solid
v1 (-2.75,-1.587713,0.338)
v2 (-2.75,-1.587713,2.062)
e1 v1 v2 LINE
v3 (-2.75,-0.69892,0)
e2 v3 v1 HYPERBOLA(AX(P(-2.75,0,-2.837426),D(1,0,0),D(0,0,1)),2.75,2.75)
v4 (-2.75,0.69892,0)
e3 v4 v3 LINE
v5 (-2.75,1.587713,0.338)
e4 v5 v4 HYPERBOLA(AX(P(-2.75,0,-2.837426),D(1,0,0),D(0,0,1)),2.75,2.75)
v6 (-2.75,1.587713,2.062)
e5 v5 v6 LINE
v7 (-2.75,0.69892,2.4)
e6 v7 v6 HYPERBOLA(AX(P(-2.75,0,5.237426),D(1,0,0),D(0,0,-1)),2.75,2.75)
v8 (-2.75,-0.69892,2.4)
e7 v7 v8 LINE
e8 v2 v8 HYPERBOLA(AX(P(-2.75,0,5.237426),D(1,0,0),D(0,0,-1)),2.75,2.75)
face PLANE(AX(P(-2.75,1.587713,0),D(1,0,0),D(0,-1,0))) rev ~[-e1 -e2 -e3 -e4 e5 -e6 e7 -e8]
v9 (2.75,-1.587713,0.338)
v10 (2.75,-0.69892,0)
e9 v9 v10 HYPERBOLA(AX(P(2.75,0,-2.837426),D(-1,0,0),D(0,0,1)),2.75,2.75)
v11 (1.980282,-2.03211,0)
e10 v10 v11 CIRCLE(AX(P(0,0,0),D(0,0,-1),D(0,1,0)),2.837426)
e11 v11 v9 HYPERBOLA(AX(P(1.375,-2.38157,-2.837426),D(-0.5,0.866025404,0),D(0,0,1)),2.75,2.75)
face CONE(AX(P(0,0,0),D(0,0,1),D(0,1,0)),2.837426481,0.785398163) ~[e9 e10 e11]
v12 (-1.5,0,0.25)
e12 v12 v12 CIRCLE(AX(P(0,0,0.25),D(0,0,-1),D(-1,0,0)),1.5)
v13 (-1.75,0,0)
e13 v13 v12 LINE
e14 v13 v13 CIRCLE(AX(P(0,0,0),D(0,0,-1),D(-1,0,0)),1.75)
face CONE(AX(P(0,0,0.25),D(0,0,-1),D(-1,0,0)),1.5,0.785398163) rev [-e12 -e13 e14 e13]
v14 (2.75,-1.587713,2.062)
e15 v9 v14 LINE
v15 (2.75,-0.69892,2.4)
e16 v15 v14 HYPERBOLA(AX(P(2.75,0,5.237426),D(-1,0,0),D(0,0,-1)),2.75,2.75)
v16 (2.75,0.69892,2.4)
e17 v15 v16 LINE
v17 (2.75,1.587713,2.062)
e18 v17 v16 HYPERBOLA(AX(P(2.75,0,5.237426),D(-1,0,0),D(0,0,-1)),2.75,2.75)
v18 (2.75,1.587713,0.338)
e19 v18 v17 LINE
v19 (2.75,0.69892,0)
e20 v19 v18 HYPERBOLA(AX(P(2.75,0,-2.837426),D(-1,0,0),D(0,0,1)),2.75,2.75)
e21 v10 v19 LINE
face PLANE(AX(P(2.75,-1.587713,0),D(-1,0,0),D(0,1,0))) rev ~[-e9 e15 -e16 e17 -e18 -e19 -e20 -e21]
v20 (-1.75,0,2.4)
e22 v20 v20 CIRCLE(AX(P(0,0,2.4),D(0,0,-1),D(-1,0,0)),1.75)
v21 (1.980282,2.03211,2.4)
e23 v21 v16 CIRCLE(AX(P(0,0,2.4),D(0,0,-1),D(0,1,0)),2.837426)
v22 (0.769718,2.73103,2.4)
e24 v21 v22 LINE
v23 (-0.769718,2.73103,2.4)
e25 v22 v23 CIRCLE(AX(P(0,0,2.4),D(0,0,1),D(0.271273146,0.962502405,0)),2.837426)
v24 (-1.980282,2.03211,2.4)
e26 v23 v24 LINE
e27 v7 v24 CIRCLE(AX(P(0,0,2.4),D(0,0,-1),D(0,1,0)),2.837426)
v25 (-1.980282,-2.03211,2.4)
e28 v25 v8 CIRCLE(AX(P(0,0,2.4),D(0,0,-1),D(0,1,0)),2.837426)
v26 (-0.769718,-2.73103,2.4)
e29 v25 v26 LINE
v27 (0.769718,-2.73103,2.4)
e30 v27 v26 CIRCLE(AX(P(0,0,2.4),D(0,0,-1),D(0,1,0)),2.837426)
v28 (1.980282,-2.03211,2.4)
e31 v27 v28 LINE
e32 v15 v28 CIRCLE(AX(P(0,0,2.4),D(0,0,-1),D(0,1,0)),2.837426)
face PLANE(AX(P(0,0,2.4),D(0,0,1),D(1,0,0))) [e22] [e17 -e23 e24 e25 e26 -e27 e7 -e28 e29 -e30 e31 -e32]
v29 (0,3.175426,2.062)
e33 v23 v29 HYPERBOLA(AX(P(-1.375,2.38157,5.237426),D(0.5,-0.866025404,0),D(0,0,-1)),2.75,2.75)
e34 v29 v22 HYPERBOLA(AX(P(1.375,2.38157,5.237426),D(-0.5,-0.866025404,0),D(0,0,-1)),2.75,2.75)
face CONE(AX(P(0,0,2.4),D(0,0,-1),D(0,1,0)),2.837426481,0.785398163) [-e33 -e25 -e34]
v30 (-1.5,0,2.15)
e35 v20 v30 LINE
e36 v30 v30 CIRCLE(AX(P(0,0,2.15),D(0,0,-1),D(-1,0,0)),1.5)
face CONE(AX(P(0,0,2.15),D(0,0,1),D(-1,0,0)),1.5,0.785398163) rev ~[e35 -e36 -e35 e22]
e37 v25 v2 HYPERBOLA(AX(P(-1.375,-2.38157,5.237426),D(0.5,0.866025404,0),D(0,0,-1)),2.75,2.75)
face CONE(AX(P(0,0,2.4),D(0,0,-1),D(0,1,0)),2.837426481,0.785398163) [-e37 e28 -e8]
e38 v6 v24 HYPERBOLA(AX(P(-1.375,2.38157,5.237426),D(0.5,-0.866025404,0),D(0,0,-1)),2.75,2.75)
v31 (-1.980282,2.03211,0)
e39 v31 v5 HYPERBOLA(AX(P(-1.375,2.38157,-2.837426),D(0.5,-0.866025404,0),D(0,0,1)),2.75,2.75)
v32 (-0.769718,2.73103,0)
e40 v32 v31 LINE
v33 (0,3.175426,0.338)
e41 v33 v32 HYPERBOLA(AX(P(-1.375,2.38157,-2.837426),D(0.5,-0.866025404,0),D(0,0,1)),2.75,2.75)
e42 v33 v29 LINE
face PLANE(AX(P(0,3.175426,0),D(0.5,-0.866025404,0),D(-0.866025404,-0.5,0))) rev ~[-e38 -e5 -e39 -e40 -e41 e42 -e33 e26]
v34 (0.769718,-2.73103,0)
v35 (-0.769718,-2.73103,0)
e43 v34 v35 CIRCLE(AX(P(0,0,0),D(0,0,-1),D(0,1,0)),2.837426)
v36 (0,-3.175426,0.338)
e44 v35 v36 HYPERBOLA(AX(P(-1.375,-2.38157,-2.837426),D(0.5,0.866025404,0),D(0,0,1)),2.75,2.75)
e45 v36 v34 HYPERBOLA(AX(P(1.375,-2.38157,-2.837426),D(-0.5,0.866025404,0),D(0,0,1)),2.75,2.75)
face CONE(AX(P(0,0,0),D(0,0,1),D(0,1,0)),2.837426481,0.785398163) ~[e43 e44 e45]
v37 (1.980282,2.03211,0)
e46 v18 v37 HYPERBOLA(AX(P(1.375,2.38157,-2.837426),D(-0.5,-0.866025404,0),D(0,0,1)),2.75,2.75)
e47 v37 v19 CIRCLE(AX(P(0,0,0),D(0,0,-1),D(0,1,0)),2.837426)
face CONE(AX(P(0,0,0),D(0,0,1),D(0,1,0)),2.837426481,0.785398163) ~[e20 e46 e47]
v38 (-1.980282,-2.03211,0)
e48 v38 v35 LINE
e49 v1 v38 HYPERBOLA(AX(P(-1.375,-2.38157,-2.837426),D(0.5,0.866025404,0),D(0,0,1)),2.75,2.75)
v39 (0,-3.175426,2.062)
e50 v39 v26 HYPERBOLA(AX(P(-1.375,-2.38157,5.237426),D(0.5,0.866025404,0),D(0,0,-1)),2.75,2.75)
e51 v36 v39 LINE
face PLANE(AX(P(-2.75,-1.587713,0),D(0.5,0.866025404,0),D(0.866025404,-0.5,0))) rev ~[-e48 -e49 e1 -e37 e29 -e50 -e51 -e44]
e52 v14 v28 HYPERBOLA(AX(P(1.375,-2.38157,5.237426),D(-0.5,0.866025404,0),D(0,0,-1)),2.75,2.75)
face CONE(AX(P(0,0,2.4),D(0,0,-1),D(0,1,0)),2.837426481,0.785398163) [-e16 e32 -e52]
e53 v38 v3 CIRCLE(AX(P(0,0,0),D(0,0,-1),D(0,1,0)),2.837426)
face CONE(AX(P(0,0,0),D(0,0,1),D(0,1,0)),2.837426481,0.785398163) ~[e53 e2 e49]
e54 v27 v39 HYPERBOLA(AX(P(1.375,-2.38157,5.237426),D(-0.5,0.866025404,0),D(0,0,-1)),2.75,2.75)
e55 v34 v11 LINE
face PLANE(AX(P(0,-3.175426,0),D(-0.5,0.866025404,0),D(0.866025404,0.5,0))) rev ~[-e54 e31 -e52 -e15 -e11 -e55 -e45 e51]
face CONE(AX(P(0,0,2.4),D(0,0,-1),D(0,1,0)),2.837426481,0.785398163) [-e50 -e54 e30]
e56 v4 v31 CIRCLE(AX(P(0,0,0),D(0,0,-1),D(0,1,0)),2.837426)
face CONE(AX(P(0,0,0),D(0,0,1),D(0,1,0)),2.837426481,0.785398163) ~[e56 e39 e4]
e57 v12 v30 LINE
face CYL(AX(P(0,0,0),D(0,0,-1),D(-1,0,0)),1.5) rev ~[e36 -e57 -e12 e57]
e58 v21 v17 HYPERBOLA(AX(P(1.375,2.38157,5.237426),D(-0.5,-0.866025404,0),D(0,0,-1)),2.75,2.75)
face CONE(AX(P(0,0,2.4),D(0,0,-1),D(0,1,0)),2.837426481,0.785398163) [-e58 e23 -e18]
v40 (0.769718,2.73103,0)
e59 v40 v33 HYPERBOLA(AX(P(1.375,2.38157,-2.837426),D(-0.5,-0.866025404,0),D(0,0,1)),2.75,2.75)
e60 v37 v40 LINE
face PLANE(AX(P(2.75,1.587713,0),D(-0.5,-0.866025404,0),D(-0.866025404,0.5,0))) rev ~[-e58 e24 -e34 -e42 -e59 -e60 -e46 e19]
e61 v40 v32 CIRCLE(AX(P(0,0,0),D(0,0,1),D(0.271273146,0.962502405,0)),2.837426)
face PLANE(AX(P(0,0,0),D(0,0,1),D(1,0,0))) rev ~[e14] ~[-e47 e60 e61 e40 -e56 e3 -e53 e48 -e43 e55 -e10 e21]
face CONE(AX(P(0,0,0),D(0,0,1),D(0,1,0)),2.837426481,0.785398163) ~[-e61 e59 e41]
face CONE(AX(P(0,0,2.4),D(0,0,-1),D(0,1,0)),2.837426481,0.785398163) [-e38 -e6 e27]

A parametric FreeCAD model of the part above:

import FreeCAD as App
import Part
import Sketcher
from FreeCAD import Vector
Q = App.Units.Quantity


def edges_at(feature, points):
    """Names of the edges that pass closest to the given points."""
    edges = feature.Shape.Edges
    near = lambda p: min(range(len(edges)), key=lambda i: edges[i].distToShape(Part.Vertex(*p))[0])
    return sorted({f"Edge{near(p) + 1}" for p in points})

doc = App.newDocument("Part")
body = doc.addObject("PartDesign::Body", "Body")

# Sketch on XY plane
sketch1 = body.newObject("Sketcher::SketchObject", "Sketch")
sketch1.AttachmentSupport = (doc.getObject("XY_Plane"), [""])
sketch1.MapMode = "FlatFace"
sketch1.addGeometry(Part.LineSegment(Vector(0, 3.2, 0), Vector(-2.8, 1.6, 0)), False)
sketch1.addGeometry(Part.LineSegment(Vector(-2.8, 1.6, 0), Vector(-2.8, -1.6, 0)), False)
sketch1.addGeometry(Part.LineSegment(Vector(-2.8, -1.6, 0), Vector(0, -3.2, 0)), False)
sketch1.addGeometry(Part.LineSegment(Vector(0, -3.2, 0), Vector(2.8, -1.6, 0)), False)
sketch1.addGeometry(Part.LineSegment(Vector(2.8, -1.6, 0), Vector(2.8, 1.6, 0)), False)
sketch1.addGeometry(Part.LineSegment(Vector(2.8, 1.6, 0), Vector(0, 3.2, 0)), False)
sketch1.addConstraint(Sketcher.Constraint("Coincident", 0, 2, 1, 1))
sketch1.addConstraint(Sketcher.Constraint("Coincident", 1, 2, 2, 1))
sketch1.addConstraint(Sketcher.Constraint("Coincident", 2, 2, 3, 1))
sketch1.addConstraint(Sketcher.Constraint("Coincident", 3, 2, 4, 1))
sketch1.addConstraint(Sketcher.Constraint("Coincident", 4, 2, 5, 1))
sketch1.addConstraint(Sketcher.Constraint("Coincident", 5, 2, 0, 1))
sketch1.addConstraint(Sketcher.Constraint("Vertical", 1))
sketch1.addConstraint(Sketcher.Constraint("Vertical", 4))
sketch1.addConstraint(Sketcher.Constraint("Symmetric", 0, 2, 3, 2, -1, 1))
sketch1.addConstraint(Sketcher.Constraint("Symmetric", 2, 2, 5, 2, -1, 1))
sketch1.addConstraint(Sketcher.Constraint("PointOnObject", 2, 2, -2))
sketch1.addConstraint(Sketcher.Constraint("Parallel", 2, 5))
sketch1.addConstraint(Sketcher.Constraint("Horizontal", 1, 2, 3, 2))
sketch1.addConstraint(Sketcher.Constraint("Angle", 0, Q("-150 deg")))
sketch1.addConstraint(Sketcher.Constraint("DistanceX", 1, 2, 3, 2, Q("5.5 mm")))
sketch1.addConstraint(Sketcher.Constraint("DistanceY", 1, 2, 1, 1, Q("3.175426 mm")))
pad1 = body.newObject("PartDesign::Pad", "Pad")
pad1.Profile = sketch1
pad1.Length = 2.4

# Sketch on YZ plane
sketch2 = body.newObject("Sketcher::SketchObject", "Sketch001")
sketch2.AttachmentSupport = (doc.getObject("YZ_Plane"), [""])
sketch2.MapMode = "FlatFace"
sketch2.addGeometry(Part.LineSegment(Vector(3.18, 2.4, 0), Vector(2.84, 2.4, 0)), False)
sketch2.addGeometry(Part.LineSegment(Vector(2.84, 2.4, 0), Vector(3.18, 2.06, 0)), False)
sketch2.addGeometry(Part.LineSegment(Vector(3.18, 2.06, 0), Vector(3.18, 2.4, 0)), False)
sketch2.addGeometry(Part.LineSegment(Vector(3.18, 0, 0), Vector(3.18, 0.34, 0)), False)
sketch2.addGeometry(Part.LineSegment(Vector(3.18, 0.34, 0), Vector(2.84, 0, 0)), False)
sketch2.addGeometry(Part.LineSegment(Vector(2.84, 0, 0), Vector(3.18, 0, 0)), False)
sketch2.addConstraint(Sketcher.Constraint("Coincident", 0, 2, 1, 1))
sketch2.addConstraint(Sketcher.Constraint("Coincident", 1, 2, 2, 1))
sketch2.addConstraint(Sketcher.Constraint("Coincident", 2, 2, 0, 1))
sketch2.addConstraint(Sketcher.Constraint("Coincident", 3, 2, 4, 1))
sketch2.addConstraint(Sketcher.Constraint("Coincident", 4, 2, 5, 1))
sketch2.addConstraint(Sketcher.Constraint("Coincident", 5, 2, 3, 1))
sketch2.addConstraint(Sketcher.Constraint("Horizontal", 0))
sketch2.addConstraint(Sketcher.Constraint("Vertical", 2))
sketch2.addConstraint(Sketcher.Constraint("Vertical", 3))
sketch2.addConstraint(Sketcher.Constraint("Horizontal", 5))
sketch2.addConstraint(Sketcher.Constraint("PointOnObject", 4, 2, -1))
sketch2.addConstraint(Sketcher.Constraint("Perpendicular", 1, 4))
sketch2.addConstraint(Sketcher.Constraint("Vertical", 2, 2, 3, 2))
sketch2.addConstraint(Sketcher.Constraint("Vertical", 0, 2, 4, 2))
sketch2.addConstraint(Sketcher.Constraint("Equal", 5, 2))
sketch2.addConstraint(Sketcher.Constraint("DistanceY", -1, 1, 0, 2, Q("2.4 mm")))
sketch2.addConstraint(Sketcher.Constraint("DistanceX", 0, 2, 0, 1, Q("0.338 mm")))
sketch2.addConstraint(Sketcher.Constraint("DistanceX", -1, 1, 0, 2, Q("2.837426 mm")))
groove = body.newObject("PartDesign::Groove", "Groove")
groove.Profile = sketch2
groove.ReferenceAxis = (sketch2, ["V_Axis"])
groove.Angle = 360

# Sketch on XY plane
sketch3 = body.newObject("Sketcher::SketchObject", "Sketch002")
sketch3.AttachmentSupport = (doc.getObject("XY_Plane"), [""])
sketch3.MapMode = "FlatFace"
sketch3.addGeometry(Part.Circle(Vector(0, 0, 0), Vector(0, 0, 1), 1.5), False)
sketch3.addConstraint(Sketcher.Constraint("Coincident", 0, 3, -1, 1))
sketch3.addConstraint(Sketcher.Constraint("Diameter", 0, Q("3 mm")))
pocket1 = body.newObject("PartDesign::Pocket", "Pocket")
pocket1.Profile = sketch3
pocket1.Type = "ThroughAll"
pocket1.Reversed = True
doc.recompute()

chamfer = body.newObject("PartDesign::Chamfer", "Chamfer")
chamfer.Base = (pocket1, edges_at(pocket1, [(1.5, 0, 2.4), (1.5, 0, 0)]))
chamfer.Size = 0.25

doc.recompute()
